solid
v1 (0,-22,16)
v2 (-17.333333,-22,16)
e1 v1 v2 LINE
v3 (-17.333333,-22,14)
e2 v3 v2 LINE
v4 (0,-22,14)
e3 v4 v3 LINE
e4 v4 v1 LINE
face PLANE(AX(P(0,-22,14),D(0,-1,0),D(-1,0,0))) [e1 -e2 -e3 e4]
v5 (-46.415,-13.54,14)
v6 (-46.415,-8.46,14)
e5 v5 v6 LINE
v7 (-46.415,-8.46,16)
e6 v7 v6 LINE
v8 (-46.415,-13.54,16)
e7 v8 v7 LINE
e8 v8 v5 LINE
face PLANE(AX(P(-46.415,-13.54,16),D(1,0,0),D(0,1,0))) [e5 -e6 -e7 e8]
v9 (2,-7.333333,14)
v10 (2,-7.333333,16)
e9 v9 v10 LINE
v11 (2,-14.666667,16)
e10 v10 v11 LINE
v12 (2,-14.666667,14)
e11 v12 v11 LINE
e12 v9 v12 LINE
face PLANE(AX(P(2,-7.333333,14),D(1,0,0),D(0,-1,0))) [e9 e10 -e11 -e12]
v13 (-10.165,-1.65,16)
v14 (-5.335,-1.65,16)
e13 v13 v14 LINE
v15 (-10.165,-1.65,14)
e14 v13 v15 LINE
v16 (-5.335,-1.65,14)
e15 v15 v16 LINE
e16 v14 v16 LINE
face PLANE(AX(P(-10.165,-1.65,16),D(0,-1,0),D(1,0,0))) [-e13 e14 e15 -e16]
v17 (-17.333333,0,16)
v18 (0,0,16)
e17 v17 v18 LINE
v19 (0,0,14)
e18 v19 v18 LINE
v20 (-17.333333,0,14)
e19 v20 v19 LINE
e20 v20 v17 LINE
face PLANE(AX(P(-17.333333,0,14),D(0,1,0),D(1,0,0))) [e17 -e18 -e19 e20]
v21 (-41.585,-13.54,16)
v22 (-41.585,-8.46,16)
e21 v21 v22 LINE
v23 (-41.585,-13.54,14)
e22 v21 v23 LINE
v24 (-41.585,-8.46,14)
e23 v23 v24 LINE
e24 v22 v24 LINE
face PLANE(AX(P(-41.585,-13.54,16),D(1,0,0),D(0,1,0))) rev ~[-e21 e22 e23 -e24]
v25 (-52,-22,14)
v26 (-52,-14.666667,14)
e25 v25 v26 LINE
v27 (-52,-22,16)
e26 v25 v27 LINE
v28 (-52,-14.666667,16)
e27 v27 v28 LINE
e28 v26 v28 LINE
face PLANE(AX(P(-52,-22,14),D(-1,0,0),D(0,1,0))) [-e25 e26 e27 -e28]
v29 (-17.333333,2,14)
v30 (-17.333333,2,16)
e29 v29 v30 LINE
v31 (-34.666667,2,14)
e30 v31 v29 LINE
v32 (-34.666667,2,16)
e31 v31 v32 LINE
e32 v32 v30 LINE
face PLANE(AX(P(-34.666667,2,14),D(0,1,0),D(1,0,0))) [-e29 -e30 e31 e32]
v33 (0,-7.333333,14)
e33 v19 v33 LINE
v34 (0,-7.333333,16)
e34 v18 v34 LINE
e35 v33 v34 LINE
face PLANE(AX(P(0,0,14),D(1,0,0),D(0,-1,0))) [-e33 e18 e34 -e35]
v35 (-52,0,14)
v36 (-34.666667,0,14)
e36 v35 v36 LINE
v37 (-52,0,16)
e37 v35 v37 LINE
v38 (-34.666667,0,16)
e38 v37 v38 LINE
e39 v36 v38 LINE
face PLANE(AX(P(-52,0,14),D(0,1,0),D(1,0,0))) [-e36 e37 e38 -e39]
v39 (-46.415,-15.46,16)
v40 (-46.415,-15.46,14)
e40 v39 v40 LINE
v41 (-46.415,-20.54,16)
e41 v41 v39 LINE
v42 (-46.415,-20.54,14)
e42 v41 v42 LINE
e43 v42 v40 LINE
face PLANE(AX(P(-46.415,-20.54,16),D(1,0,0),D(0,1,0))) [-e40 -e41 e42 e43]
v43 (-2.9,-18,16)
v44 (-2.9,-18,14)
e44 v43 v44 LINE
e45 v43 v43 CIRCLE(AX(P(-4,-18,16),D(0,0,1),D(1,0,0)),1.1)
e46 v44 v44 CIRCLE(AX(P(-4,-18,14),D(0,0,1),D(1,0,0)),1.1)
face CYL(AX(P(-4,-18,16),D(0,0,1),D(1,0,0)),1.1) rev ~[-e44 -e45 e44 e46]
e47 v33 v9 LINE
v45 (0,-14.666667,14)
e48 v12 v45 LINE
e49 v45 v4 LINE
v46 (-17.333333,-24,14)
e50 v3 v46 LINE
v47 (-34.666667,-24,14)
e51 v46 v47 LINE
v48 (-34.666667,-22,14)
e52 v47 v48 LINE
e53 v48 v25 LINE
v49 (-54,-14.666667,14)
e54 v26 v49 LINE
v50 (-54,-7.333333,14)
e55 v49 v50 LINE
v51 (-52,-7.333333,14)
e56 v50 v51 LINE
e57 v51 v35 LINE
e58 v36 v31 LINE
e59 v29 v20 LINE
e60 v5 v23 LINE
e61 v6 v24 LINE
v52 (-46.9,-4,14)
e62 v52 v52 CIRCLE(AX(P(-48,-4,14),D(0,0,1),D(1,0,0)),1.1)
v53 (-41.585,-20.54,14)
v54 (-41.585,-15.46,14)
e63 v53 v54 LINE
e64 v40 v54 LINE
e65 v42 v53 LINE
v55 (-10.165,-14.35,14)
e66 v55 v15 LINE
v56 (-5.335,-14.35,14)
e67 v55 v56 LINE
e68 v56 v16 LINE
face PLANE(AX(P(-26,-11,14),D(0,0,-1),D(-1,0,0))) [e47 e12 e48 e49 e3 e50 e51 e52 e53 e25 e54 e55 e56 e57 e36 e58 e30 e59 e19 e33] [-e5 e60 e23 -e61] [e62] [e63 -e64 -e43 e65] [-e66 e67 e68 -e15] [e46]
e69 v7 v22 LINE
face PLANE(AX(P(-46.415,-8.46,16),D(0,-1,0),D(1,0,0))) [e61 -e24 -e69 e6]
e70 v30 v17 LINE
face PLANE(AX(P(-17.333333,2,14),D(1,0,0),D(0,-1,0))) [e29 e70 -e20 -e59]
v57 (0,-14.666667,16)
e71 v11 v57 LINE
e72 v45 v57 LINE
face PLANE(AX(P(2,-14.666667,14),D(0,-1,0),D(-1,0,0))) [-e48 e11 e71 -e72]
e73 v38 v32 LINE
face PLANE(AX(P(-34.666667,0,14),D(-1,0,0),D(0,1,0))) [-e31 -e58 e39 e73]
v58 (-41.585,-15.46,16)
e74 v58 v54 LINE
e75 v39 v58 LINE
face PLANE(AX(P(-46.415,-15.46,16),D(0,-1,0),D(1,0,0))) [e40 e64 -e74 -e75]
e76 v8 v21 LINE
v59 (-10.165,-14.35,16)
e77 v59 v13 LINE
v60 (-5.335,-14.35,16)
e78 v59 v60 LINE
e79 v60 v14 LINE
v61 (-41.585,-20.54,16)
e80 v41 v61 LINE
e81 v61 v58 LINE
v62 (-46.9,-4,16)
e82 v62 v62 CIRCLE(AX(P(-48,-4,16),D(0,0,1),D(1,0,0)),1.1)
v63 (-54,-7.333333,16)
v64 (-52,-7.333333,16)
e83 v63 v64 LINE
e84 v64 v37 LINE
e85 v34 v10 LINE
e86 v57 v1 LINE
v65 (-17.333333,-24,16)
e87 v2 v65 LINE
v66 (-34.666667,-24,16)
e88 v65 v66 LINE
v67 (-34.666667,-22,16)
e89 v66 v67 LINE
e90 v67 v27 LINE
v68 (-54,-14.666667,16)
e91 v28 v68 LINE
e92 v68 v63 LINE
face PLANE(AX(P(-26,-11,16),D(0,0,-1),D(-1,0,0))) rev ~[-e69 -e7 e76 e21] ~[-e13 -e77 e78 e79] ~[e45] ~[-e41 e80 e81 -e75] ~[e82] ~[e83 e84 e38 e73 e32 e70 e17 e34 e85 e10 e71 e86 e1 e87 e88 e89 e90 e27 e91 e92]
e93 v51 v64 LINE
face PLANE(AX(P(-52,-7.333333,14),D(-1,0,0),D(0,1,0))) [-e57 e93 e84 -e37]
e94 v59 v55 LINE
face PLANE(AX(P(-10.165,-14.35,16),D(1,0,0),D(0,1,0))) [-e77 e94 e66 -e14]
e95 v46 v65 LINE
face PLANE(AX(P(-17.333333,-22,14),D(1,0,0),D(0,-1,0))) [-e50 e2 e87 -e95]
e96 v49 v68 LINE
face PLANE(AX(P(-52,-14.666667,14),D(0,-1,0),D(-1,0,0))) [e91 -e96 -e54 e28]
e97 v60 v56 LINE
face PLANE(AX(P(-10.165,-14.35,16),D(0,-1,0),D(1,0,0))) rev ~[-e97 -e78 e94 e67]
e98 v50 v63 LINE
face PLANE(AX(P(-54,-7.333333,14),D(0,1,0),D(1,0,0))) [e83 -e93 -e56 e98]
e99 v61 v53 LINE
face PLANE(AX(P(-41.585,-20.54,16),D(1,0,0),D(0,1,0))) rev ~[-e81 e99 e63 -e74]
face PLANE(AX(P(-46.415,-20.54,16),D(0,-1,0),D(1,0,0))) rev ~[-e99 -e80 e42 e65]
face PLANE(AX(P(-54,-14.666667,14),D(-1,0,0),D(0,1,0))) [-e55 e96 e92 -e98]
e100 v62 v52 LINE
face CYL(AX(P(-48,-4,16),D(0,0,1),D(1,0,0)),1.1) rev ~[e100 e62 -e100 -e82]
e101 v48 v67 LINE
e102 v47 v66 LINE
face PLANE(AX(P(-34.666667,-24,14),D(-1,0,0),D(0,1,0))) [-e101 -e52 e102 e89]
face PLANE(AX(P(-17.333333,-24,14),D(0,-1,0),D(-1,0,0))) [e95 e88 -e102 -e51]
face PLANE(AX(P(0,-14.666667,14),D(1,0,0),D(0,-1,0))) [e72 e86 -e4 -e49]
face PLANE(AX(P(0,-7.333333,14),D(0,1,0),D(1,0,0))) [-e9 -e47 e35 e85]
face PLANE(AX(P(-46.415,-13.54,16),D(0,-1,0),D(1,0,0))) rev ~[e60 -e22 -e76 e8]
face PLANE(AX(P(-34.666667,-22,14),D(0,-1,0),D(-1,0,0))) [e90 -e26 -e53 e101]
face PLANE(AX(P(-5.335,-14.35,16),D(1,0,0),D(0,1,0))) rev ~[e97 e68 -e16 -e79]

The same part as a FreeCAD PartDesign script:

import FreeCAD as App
import Part
import Sketcher


def add_polygon(sketch, points):
    """Adds a closed chain of lines whose ends are joined by coincident constraints."""
    first, n = sketch.GeometryCount, len(points)
    for a, b in zip(points, points[1:] + points[:1]):
        sketch.addGeometry(Part.LineSegment(App.Vector(*a, 0), App.Vector(*b, 0)), False)
    for i in range(n):
        sketch.addConstraint(Sketcher.Constraint("Coincident", first + i, 2, first + (i + 1) % n, 1))

doc = App.newDocument("Part")
body = doc.addObject("PartDesign::Body", "Body")

# Sketch on XY plane
sketch1 = doc.addObject("Sketcher::SketchObject", "Sketch")
body.addObject(sketch1)
sketch1.AttachmentSupport = (doc.XY_Plane, [""])
sketch1.MapMode = "FlatFace"
add_polygon(sketch1, [(8.7, 13), (-8.7, 13), (-8.7, 11), (-26, 11), (-26, 3.7), (-28, 3.7), (-28, -3.7), (-26, -3.7), (-26, -11), (-8.7, -11), (-8.7, -13), (8.7, -13), (8.7, -11), (26, -11), (26, -3.7), (28, -3.7), (28, 3.7), (26, 3.7), (26, 11), (8.7, 11)])  # lines 0-19
sketch1.addConstraint(Sketcher.Constraint("Horizontal", 0))
sketch1.addConstraint(Sketcher.Constraint("Vertical", 1))
sketch1.addConstraint(Sketcher.Constraint("Horizontal", 2))
sketch1.addConstraint(Sketcher.Constraint("Vertical", 3))
sketch1.addConstraint(Sketcher.Constraint("Horizontal", 4))
sketch1.addConstraint(Sketcher.Constraint("Vertical", 5))
sketch1.addConstraint(Sketcher.Constraint("Horizontal", 6))
sketch1.addConstraint(Sketcher.Constraint("Vertical", 7))
sketch1.addConstraint(Sketcher.Constraint("Horizontal", 8))
sketch1.addConstraint(Sketcher.Constraint("Vertical", 9))
sketch1.addConstraint(Sketcher.Constraint("Horizontal", 10))
sketch1.addConstraint(Sketcher.Constraint("Vertical", 11))
sketch1.addConstraint(Sketcher.Constraint("Horizontal", 12))
sketch1.addConstraint(Sketcher.Constraint("Vertical", 13))
sketch1.addConstraint(Sketcher.Constraint("Horizontal", 14))
sketch1.addConstraint(Sketcher.Constraint("Vertical", 15))
sketch1.addConstraint(Sketcher.Constraint("Horizontal", 16))
sketch1.addConstraint(Sketcher.Constraint("Vertical", 17))
sketch1.addConstraint(Sketcher.Constraint("Horizontal", 18))
sketch1.addConstraint(Sketcher.Constraint("Vertical", 19))
sketch1.addConstraint(Sketcher.Constraint("Symmetric", 0, 2, 10, 2, -1, 1))
sketch1.addConstraint(Sketcher.Constraint("Symmetric", 2, 2, 12, 2, -1, 1))
sketch1.addConstraint(Sketcher.Constraint("Symmetric", 4, 2, 14, 2, -1, 1))
sketch1.addConstraint(Sketcher.Constraint("Symmetric", 6, 2, 16, 2, -1, 1))
sketch1.addConstraint(Sketcher.Constraint("Symmetric", 8, 2, 18, 2, -1, 1))
sketch1.addConstraint(Sketcher.Constraint("Symmetric", 8, 2, 11, 2, -2))
sketch1.addConstraint(Sketcher.Constraint("Symmetric", 6, 2, 13, 2, -2))
sketch1.addConstraint(Sketcher.Constraint("Equal", 0, 2))
sketch1.addConstraint(Sketcher.Constraint("Equal", 16, 1))
sketch1.addConstraint(Sketcher.Constraint("Equal", 3, 5))
sketch1.addConstraint(Sketcher.Constraint("DistanceX", 4, 2, 4, 1, 2.0))
sketch1.addConstraint(Sketcher.Constraint("DistanceY", -1, 1, 0, 2, 13.0))
sketch1.addConstraint(Sketcher.Constraint("DistanceX", 2, 2, -1, 1, 26.0))
pad1 = doc.addObject("PartDesign::Pad", "Pad")
body.addObject(pad1)
pad1.Profile = sketch1
pad1.Length = 2

# Sketch on XY plane
sketch2 = doc.addObject("Sketcher::SketchObject", "Sketch001")
body.addObject(sketch2)
sketch2.AttachmentSupport = (doc.XY_Plane, [""])
sketch2.MapMode = "FlatFace"
sketch2.AttachmentOffset = App.Placement(App.Vector(0, 0, 2), App.Rotation())
add_polygon(sketch2, [(15.8, 9.3), (15.8, -3.4), (20.7, -3.4), (20.7, 9.3)])  # lines 0-3
sketch2.addConstraint(Sketcher.Constraint("Vertical", 0))
sketch2.addConstraint(Sketcher.Constraint("Horizontal", 1))
sketch2.addConstraint(Sketcher.Constraint("Vertical", 2))
sketch2.addConstraint(Sketcher.Constraint("Horizontal", 3))
sketch2.addConstraint(Sketcher.Constraint("DistanceY", 0, 2, 0, 1, 12.7))
sketch2.addConstraint(Sketcher.Constraint("DistanceX", 1, 1, 1, 2, 4.83))
sketch2.addConstraint(Sketcher.Constraint("DistanceY", 0, 2, -1, 1, 3.35))
sketch2.addConstraint(Sketcher.Constraint("DistanceX", -1, 1, 0, 2, 15.835))
pocket1 = doc.addObject("PartDesign::Pocket", "Pocket")
body.addObject(pocket1)
pocket1.Profile = sketch2
pocket1.Length = 2

# Sketch on XY plane
sketch3 = doc.addObject("Sketcher::SketchObject", "Sketch002")
body.addObject(sketch3)
sketch3.AttachmentSupport = (doc.XY_Plane, [""])
sketch3.MapMode = "FlatFace"
sketch3.AttachmentOffset = App.Placement(App.Vector(0, 0, 2), App.Rotation())
add_polygon(sketch3, [(-20.4, 2.5), (-20.4, -2.5), (-15.6, -2.5), (-15.6, 2.5)])  # lines 0-3
sketch3.addConstraint(Sketcher.Constraint("Vertical", 0))
sketch3.addConstraint(Sketcher.Constraint("Horizontal", 1))
sketch3.addConstraint(Sketcher.Constraint("Vertical", 2))
sketch3.addConstraint(Sketcher.Constraint("Horizontal", 3))
sketch3.addConstraint(Sketcher.Constraint("DistanceX", 1, 1, 1, 2, 4.83))
sketch3.addConstraint(Sketcher.Constraint("DistanceY", 0, 2, 0, 1, 5.08))
sketch3.addConstraint(Sketcher.Constraint("DistanceY", 0, 2, -1, 1, 2.54))
sketch3.addConstraint(Sketcher.Constraint("DistanceX", 0, 2, -1, 1, 20.415))
pocket2 = doc.addObject("PartDesign::Pocket", "Pocket001")
body.addObject(pocket2)
pocket2.Profile = sketch3
pocket2.Length = 2

# Sketch on XY plane
sketch4 = doc.addObject("Sketcher::SketchObject", "Sketch003")
body.addObject(sketch4)
sketch4.AttachmentSupport = (doc.XY_Plane, [""])
sketch4.MapMode = "FlatFace"
sketch4.AttachmentOffset = App.Placement(App.Vector(0, 0, 2), App.Rotation())
add_polygon(sketch4, [(-20.4, -4.5), (-20.4, -9.5), (-15.6, -9.5), (-15.6, -4.5)])  # lines 0-3
sketch4.addConstraint(Sketcher.Constraint("Vertical", 0))
sketch4.addConstraint(Sketcher.Constraint("Horizontal", 1))
sketch4.addConstraint(Sketcher.Constraint("Vertical", 2))
sketch4.addConstraint(Sketcher.Constraint("Horizontal", 3))
sketch4.addConstraint(Sketcher.Constraint("DistanceX", 1, 1, 1, 2, 4.83))
sketch4.addConstraint(Sketcher.Constraint("DistanceY", 0, 2, 0, 1, 5.08))
sketch4.addConstraint(Sketcher.Constraint("DistanceY", 0, 2, -1, 1, 9.54))
sketch4.addConstraint(Sketcher.Constraint("DistanceX", 0, 2, -1, 1, 20.415))
pocket3 = doc.addObject("PartDesign::Pocket", "Pocket002")
body.addObject(pocket3)
pocket3.Profile = sketch4
pocket3.Length = 2

# Sketch on XY plane
sketch5 = doc.addObject("Sketcher::SketchObject", "Sketch004")
body.addObject(sketch5)
sketch5.AttachmentSupport = (doc.XY_Plane, [""])
sketch5.MapMode = "FlatFace"
sketch5.AttachmentOffset = App.Placement(App.Vector(0, 0, 2), App.Rotation())
sketch5.addGeometry(Part.Circle(App.Vector(-22, 7, 0), App.Vector(0, 0, 1), 1.1), False)
sketch5.addConstraint(Sketcher.Constraint("Diameter", 0, 2.2))
sketch5.addConstraint(Sketcher.Constraint("DistanceX", 0, 3, -1, 1, 22.0))
sketch5.addConstraint(Sketcher.Constraint("DistanceY", -1, 1, 0, 3, 7.0))
pocket4 = doc.addObject("PartDesign::Pocket", "Pocket003")
body.addObject(pocket4)
pocket4.Profile = sketch5
pocket4.Length = 2

# Sketch on XY plane
sketch6 = doc.addObject("Sketcher::SketchObject", "Sketch005")
body.addObject(sketch6)
sketch6.AttachmentSupport = (doc.XY_Plane, [""])
sketch6.MapMode = "FlatFace"
sketch6.AttachmentOffset = App.Placement(App.Vector(0, 0, 2), App.Rotation())
sketch6.addGeometry(Part.Circle(App.Vector(22, -7, 0), App.Vector(0, 0, 1), 1.1), False)
sketch6.addConstraint(Sketcher.Constraint("Diameter", 0, 2.2))
sketch6.addConstraint(Sketcher.Constraint("DistanceX", -1, 1, 0, 3, 22.0))
sketch6.addConstraint(Sketcher.Constraint("DistanceY", 0, 3, -1, 1, 7.0))
pocket5 = doc.addObject("PartDesign::Pocket", "Pocket004")
body.addObject(pocket5)
pocket5.Profile = sketch6
pocket5.Length = 2
body2 = doc.addObject("PartDesign::Body", "Body001")
doc.recompute()

body.Placement = App.Placement(App.Vector(-26, -11, 14), App.Rotation(App.Vector(0, 0, 1), 0))
boolean = doc.addObject("PartDesign::Boolean", "Boolean")
body2.addObject(boolean)
boolean.Type = "Fuse"
boolean.addObjects([body])

doc.recompute()
